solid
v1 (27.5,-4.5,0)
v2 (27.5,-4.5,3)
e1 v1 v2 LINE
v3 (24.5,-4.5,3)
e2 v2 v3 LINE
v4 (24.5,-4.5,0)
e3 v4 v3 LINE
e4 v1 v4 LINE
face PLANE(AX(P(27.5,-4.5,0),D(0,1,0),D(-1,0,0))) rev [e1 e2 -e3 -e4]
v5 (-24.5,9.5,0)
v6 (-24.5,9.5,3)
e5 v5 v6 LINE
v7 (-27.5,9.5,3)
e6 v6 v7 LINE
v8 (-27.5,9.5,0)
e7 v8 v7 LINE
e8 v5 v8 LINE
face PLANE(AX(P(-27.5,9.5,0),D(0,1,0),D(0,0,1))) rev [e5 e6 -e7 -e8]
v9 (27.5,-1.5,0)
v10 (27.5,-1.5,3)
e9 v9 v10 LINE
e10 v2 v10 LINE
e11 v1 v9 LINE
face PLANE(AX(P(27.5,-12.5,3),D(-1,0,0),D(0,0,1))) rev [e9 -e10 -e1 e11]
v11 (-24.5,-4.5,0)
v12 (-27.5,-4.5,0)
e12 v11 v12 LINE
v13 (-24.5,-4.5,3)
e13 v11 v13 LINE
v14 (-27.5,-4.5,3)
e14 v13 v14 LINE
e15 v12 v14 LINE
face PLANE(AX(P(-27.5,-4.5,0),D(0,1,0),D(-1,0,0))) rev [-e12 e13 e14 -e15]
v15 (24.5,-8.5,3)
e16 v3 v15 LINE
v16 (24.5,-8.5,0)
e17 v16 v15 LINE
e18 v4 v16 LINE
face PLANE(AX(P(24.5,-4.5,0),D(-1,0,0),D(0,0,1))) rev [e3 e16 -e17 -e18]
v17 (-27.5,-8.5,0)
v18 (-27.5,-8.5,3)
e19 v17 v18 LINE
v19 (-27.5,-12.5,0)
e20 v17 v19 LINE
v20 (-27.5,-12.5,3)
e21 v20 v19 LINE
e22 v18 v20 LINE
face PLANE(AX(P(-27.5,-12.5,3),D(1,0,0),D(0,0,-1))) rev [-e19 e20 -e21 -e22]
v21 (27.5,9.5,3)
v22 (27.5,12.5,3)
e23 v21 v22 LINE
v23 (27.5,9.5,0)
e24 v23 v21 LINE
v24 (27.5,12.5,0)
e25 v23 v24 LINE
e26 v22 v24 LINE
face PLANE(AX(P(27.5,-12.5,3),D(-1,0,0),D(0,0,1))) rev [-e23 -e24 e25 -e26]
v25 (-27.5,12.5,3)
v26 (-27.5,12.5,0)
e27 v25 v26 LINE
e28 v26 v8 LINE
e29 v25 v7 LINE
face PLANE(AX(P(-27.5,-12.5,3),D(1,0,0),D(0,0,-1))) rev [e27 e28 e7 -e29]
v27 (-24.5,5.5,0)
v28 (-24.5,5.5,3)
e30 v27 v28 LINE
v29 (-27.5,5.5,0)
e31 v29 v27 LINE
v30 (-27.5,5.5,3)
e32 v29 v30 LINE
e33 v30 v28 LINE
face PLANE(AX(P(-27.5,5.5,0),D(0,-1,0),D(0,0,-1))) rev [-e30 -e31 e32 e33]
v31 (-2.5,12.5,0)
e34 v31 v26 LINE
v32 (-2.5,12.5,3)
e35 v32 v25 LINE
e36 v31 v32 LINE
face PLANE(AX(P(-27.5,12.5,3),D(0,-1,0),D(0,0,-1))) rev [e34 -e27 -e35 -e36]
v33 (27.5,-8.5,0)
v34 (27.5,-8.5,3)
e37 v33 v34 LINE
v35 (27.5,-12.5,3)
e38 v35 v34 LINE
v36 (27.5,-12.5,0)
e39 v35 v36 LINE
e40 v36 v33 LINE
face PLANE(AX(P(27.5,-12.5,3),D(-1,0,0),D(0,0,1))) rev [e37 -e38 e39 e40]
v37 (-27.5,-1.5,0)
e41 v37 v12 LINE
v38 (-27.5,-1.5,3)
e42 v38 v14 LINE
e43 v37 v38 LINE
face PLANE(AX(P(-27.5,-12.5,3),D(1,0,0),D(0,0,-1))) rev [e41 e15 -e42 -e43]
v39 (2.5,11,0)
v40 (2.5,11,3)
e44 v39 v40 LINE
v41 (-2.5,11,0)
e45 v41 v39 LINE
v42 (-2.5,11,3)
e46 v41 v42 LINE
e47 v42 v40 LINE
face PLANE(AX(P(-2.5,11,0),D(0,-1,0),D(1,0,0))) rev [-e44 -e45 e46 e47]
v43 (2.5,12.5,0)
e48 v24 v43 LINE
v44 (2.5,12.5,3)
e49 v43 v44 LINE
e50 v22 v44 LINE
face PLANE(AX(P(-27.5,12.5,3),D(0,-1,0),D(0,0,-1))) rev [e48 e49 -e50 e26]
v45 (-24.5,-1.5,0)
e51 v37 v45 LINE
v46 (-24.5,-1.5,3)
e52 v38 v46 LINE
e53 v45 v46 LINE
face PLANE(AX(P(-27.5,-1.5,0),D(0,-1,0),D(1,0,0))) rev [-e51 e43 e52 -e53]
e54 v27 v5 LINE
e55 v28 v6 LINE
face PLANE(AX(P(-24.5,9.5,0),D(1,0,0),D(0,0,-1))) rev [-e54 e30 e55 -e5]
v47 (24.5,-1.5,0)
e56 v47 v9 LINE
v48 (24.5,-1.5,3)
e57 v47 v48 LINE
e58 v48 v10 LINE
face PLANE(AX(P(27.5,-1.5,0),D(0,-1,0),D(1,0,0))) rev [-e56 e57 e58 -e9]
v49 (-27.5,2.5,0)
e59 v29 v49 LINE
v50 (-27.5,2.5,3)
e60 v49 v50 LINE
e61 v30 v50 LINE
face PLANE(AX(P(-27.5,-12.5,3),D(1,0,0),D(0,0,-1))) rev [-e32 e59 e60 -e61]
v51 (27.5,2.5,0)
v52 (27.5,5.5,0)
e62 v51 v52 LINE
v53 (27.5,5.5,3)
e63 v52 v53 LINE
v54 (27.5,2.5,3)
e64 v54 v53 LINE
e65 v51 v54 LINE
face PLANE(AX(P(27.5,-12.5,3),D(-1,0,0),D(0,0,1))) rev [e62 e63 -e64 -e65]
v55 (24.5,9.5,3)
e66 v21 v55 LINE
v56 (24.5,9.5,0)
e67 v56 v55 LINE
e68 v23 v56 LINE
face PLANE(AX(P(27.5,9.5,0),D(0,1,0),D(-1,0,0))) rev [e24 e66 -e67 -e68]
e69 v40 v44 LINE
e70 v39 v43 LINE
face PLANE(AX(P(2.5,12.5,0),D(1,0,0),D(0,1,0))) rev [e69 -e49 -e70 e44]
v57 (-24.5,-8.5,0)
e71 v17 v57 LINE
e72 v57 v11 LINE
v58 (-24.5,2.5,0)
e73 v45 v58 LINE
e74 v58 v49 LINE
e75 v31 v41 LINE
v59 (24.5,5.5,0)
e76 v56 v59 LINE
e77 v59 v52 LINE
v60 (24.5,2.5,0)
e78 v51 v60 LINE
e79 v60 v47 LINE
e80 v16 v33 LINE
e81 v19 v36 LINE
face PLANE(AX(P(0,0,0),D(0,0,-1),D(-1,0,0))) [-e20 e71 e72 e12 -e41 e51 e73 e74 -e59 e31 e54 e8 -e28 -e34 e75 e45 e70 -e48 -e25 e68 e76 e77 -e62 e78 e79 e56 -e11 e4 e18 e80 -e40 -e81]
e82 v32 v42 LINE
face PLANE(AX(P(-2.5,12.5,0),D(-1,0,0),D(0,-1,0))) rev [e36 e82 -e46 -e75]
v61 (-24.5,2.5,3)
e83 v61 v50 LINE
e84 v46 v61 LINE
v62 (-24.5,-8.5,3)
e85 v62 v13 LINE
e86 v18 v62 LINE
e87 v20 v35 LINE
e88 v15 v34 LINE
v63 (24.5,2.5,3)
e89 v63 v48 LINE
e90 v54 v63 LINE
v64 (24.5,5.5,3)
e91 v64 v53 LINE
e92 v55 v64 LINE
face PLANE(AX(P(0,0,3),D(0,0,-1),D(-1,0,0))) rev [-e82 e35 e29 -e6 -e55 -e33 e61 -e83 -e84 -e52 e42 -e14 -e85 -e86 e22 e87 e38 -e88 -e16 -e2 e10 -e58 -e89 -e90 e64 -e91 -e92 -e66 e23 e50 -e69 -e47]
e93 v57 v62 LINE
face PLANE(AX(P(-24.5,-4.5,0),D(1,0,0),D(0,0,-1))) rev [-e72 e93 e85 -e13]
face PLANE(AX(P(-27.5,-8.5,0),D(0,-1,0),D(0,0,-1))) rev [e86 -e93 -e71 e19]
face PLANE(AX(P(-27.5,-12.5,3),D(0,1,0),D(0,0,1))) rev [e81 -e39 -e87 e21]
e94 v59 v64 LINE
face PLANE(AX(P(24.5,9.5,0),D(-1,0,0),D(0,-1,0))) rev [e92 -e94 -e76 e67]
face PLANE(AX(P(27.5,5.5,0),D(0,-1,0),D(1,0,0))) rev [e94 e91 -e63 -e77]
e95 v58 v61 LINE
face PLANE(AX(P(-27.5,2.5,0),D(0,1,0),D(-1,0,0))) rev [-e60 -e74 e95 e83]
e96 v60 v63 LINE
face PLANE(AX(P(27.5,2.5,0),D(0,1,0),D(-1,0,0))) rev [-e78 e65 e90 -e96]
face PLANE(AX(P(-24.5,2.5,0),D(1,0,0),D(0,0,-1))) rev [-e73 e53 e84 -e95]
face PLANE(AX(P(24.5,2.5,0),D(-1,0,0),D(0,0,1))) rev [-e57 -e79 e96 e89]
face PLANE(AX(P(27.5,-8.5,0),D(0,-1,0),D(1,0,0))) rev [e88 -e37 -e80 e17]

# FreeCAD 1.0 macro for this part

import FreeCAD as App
import Part
import Sketcher
Q = App.Units.Quantity


def add_polygon(sketch, points):
    """Adds a closed chain of lines whose ends are joined by coincident constraints."""
    first, n = sketch.GeometryCount, len(points)
    for a, b in zip(points, points[1:] + points[:1]):
        sketch.addGeometry(Part.LineSegment(App.Vector(*a, 0), App.Vector(*b, 0)), False)
    for i in range(n):
        sketch.addConstraint(Sketcher.Constraint("Coincident", first + i, 2, first + (i + 1) % n, 1))

doc = App.newDocument("Part")
params = doc.addObject("Spreadsheet::Sheet", "Params")
for row, (alias, value) in enumerate([
    ("sketch1_width", "55 mm"),
    ("sketch1_height", "25 mm"),
    ("pad1_length", "3 mm"),
    ("sketch2_width", "5 mm"),
    ("sketch2_height", "1.5 mm"),
    ("pocket1_length", "3 mm"),
    ("sketch3_width", "3 mm"),
    ("sketch3_height", "4 mm"),
    ("pocket2_length", "3 mm"),
    ("sketch4_width", "3 mm"),
    ("sketch4_height", "4 mm"),
    ("pocket3_length", "3 mm"),
], start=1):
    params.set(f"A{row}", alias)
    params.set(f"B{row}", "=" + value)
    params.setAlias(f"B{row}", alias)

body = doc.addObject("PartDesign::Body", "Body")

# Sketch on XY plane
sketch1 = body.newObject("Sketcher::SketchObject", "Sketch")
sketch1.AttachmentSupport = (doc.getObject("XY_Plane"), [""])
sketch1.MapMode = "FlatFace"
add_polygon(sketch1, [(-28, 12), (-28, -12), (28, -12), (28, 12)])  # lines 0-3
sketch1.addConstraint(Sketcher.Constraint("Vertical", 0))
sketch1.addConstraint(Sketcher.Constraint("Horizontal", 1))
sketch1.addConstraint(Sketcher.Constraint("Vertical", 2))
sketch1.addConstraint(Sketcher.Constraint("Horizontal", 3))
sketch1.addConstraint(Sketcher.Constraint("Symmetric", 0, 2, 2, 2, -1, 1))
sketch1.addConstraint(Sketcher.Constraint("DistanceX", 1, 1, 1, 2, Q("55 mm")))
sketch1.addConstraint(Sketcher.Constraint("DistanceY", 0, 2, 0, 1, Q("25 mm")))
sketch1.setExpression("Constraints[9]", "Params.sketch1_width")
sketch1.setExpression("Constraints[10]", "Params.sketch1_height")
pad1 = body.newObject("PartDesign::Pad", "Pad")
pad1.Profile = sketch1
pad1.setExpression("Length", "Params.pad1_length")

# Sketch on XY plane
sketch2 = body.newObject("Sketcher::SketchObject", "Sketch001")
sketch2.AttachmentSupport = (doc.getObject("XY_Plane"), [""])
sketch2.MapMode = "FlatFace"
sketch2.AttachmentOffset = App.Placement(App.Vector(0, 0, 3), App.Rotation())
add_polygon(sketch2, [(-2.5, 12.5), (-2.5, 11), (2.5, 11), (2.5, 12.5)])  # lines 0-3
sketch2.addConstraint(Sketcher.Constraint("Vertical", 0))
sketch2.addConstraint(Sketcher.Constraint("Horizontal", 1))
sketch2.addConstraint(Sketcher.Constraint("Vertical", 2))
sketch2.addConstraint(Sketcher.Constraint("Horizontal", 3))
sketch2.addConstraint(Sketcher.Constraint("DistanceX", 1, 1, 1, 2, Q("5 mm")))
sketch2.addConstraint(Sketcher.Constraint("DistanceY", 0, 2, 0, 1, Q("1.5 mm")))
sketch2.addConstraint(Sketcher.Constraint("DistanceY", -1, 1, 0, 2, Q("11 mm")))
sketch2.addConstraint(Sketcher.Constraint("DistanceX", 0, 2, -1, 1, Q("2.5 mm")))
sketch2.setExpression("Constraints[8]", "Params.sketch2_width")
sketch2.setExpression("Constraints[9]", "Params.sketch2_height")
pocket1 = body.newObject("PartDesign::Pocket", "Pocket")
pocket1.Profile = sketch2
pocket1.setExpression("Length", "Params.pocket1_length")

# Sketch on XY plane
sketch3 = body.newObject("Sketcher::SketchObject", "Sketch002")
sketch3.AttachmentSupport = (doc.getObject("XY_Plane"), [""])
sketch3.MapMode = "FlatFace"
sketch3.AttachmentOffset = App.Placement(App.Vector(0, 0, 3), App.Rotation())
add_polygon(sketch3, [(-27.5, 9.5), (-27.5, 5.5), (-24.5, 5.5), (-24.5, 9.5)])  # lines 0-3
add_polygon(sketch3, [(-27.5, 2.5), (-27.5, -1.5), (-24.5, -1.5), (-24.5, 2.5)])  # lines 4-7
add_polygon(sketch3, [(-27.5, -4.5), (-27.5, -8.5), (-24.5, -8.5), (-24.5, -4.5)])  # lines 8-11
sketch3.addConstraint(Sketcher.Constraint("Vertical", 0))
sketch3.addConstraint(Sketcher.Constraint("Horizontal", 1))
sketch3.addConstraint(Sketcher.Constraint("Vertical", 2))
sketch3.addConstraint(Sketcher.Constraint("Horizontal", 3))
sketch3.addConstraint(Sketcher.Constraint("Vertical", 4))
sketch3.addConstraint(Sketcher.Constraint("Horizontal", 5))
sketch3.addConstraint(Sketcher.Constraint("Vertical", 6))
sketch3.addConstraint(Sketcher.Constraint("Horizontal", 7))
sketch3.addConstraint(Sketcher.Constraint("Vertical", 8))
sketch3.addConstraint(Sketcher.Constraint("Horizontal", 9))
sketch3.addConstraint(Sketcher.Constraint("Vertical", 10))
sketch3.addConstraint(Sketcher.Constraint("Horizontal", 11))
sketch3.addConstraint(Sketcher.Constraint("Vertical", 3, 2, 4, 2))
sketch3.addConstraint(Sketcher.Constraint("Vertical", 2, 2, 5, 2))
sketch3.addConstraint(Sketcher.Constraint("Vertical", 7, 2, 8, 2))
sketch3.addConstraint(Sketcher.Constraint("Vertical", 6, 2, 9, 2))
sketch3.addConstraint(Sketcher.Constraint("Equal", 2, 4))
sketch3.addConstraint(Sketcher.Constraint("Equal", 6, 8))
sketch3.addConstraint(Sketcher.Constraint("DistanceX", 1, 1, 1, 2, Q("3 mm")))
sketch3.addConstraint(Sketcher.Constraint("DistanceY", 0, 2, 0, 1, Q("4 mm")))
sketch3.addConstraint(Sketcher.Constraint("DistanceY", 4, 2, 0, 2, Q("7 mm")))
sketch3.addConstraint(Sketcher.Constraint("DistanceY", 8, 2, 4, 2, Q("7 mm")))
sketch3.addConstraint(Sketcher.Constraint("DistanceX", 0, 2, -1, 1, Q("27.5 mm")))
sketch3.addConstraint(Sketcher.Constraint("DistanceY", -1, 1, 0, 2, Q("5.5 mm")))
sketch3.setExpression("Constraints[30]", "Params.sketch3_width")
sketch3.setExpression("Constraints[31]", "Params.sketch3_height")
pocket2 = body.newObject("PartDesign::Pocket", "Pocket001")
pocket2.Profile = sketch3
pocket2.setExpression("Length", "Params.pocket2_length")

# Sketch on XY plane
sketch4 = body.newObject("Sketcher::SketchObject", "Sketch003")
sketch4.AttachmentSupport = (doc.getObject("XY_Plane"), [""])
sketch4.MapMode = "FlatFace"
sketch4.AttachmentOffset = App.Placement(App.Vector(0, 0, 3), App.Rotation())
add_polygon(sketch4, [(24.5, 9.5), (24.5, 5.5), (27.5, 5.5), (27.5, 9.5)])  # lines 0-3
add_polygon(sketch4, [(24.5, 2.5), (24.5, -1.5), (27.5, -1.5), (27.5, 2.5)])  # lines 4-7
add_polygon(sketch4, [(24.5, -4.5), (24.5, -8.5), (27.5, -8.5), (27.5, -4.5)])  # lines 8-11
sketch4.addConstraint(Sketcher.Constraint("Vertical", 0))
sketch4.addConstraint(Sketcher.Constraint("Horizontal", 1))
sketch4.addConstraint(Sketcher.Constraint("Vertical", 2))
sketch4.addConstraint(Sketcher.Constraint("Horizontal", 3))
sketch4.addConstraint(Sketcher.Constraint("Vertical", 4))
sketch4.addConstraint(Sketcher.Constraint("Horizontal", 5))
sketch4.addConstraint(Sketcher.Constraint("Vertical", 6))
sketch4.addConstraint(Sketcher.Constraint("Horizontal", 7))
sketch4.addConstraint(Sketcher.Constraint("Vertical", 8))
sketch4.addConstraint(Sketcher.Constraint("Horizontal", 9))
sketch4.addConstraint(Sketcher.Constraint("Vertical", 10))
sketch4.addConstraint(Sketcher.Constraint("Horizontal", 11))
sketch4.addConstraint(Sketcher.Constraint("Vertical", 3, 2, 4, 2))
sketch4.addConstraint(Sketcher.Constraint("Vertical", 2, 2, 5, 2))
sketch4.addConstraint(Sketcher.Constraint("Vertical", 7, 2, 8, 2))
sketch4.addConstraint(Sketcher.Constraint("Vertical", 6, 2, 9, 2))
sketch4.addConstraint(Sketcher.Constraint("Equal", 2, 4))
sketch4.addConstraint(Sketcher.Constraint("Equal", 6, 8))
sketch4.addConstraint(Sketcher.Constraint("DistanceX", 1, 1, 1, 2, Q("3 mm")))
sketch4.addConstraint(Sketcher.Constraint("DistanceY", 0, 2, 0, 1, Q("4 mm")))
sketch4.addConstraint(Sketcher.Constraint("DistanceY", 4, 2, 0, 2, Q("7 mm")))
sketch4.addConstraint(Sketcher.Constraint("DistanceY", 8, 2, 4, 2, Q("7 mm")))
sketch4.addConstraint(Sketcher.Constraint("DistanceX", -1, 1, 0, 2, Q("24.5 mm")))
sketch4.addConstraint(Sketcher.Constraint("DistanceY", -1, 1, 0, 2, Q("5.5 mm")))
sketch4.setExpression("Constraints[30]", "Params.sketch4_width")
sketch4.setExpression("Constraints[31]", "Params.sketch4_height")
pocket3 = body.newObject("PartDesign::Pocket", "Pocket002")
pocket3.Profile = sketch4
pocket3.setExpression("Length", "Params.pocket3_length")

doc.recompute()
